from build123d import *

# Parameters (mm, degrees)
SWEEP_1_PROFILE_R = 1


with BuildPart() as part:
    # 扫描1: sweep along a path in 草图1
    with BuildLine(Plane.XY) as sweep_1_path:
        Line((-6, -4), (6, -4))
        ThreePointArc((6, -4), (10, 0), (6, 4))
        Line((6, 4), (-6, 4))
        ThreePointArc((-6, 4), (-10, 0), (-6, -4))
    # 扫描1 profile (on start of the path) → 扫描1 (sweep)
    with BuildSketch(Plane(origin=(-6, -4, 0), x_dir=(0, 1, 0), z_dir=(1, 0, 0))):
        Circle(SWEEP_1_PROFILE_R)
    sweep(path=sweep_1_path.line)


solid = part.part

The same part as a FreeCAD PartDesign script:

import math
import FreeCAD as App
import Part
import Sketcher

V = App.Vector
Q = App.Units.Quantity

doc = App.newDocument("Part")
body = doc.addObject("PartDesign::Body", "Body")

# Sketch on YZ plane
sketch1 = body.newObject("Sketcher::SketchObject", "Sketch")
sketch1.AttachmentSupport = (doc.getObject("YZ_Plane"), [""])
sketch1.MapMode = "FlatFace"
sketch1.AttachmentOffset = App.Placement(V(0, 0, -6), App.Rotation())
sketch1.addGeometry(Part.Circle(V(-4, 0, 0), V(0, 0, 1), 1), False)
sketch1.addConstraint([
    Sketcher.Constraint("PointOnObject", 0, 3, -1),
    Sketcher.Constraint("Diameter", 0, Q("2 mm")),
    Sketcher.Constraint("DistanceX", 0, 3, -1, 1, Q("4 mm")),
])

# Sketch on XY plane
sketch2 = body.newObject("Sketcher::SketchObject", "Sketch001")
sketch2.AttachmentSupport = (doc.getObject("XY_Plane"), [""])
sketch2.MapMode = "FlatFace"
sketch2.addGeometry([
    Part.LineSegment(V(-6, -4, 0), V(6, -4, 0)),
    Part.ArcOfCircle(Part.Circle(V(6, 0, 0), V(0, 0, 1), 4), math.radians(-90), math.radians(90)),
    Part.LineSegment(V(6, 4, 0), V(-6, 4, 0)),
    Part.ArcOfCircle(Part.Circle(V(-6, 0, 0), V(0, 0, 1), 4), math.radians(90), math.radians(270)),
], False)
sketch2.addConstraint([
    Sketcher.Constraint("Tangent", 0, 2, 1, 1),
    Sketcher.Constraint("Tangent", 1, 2, 2, 1),
    Sketcher.Constraint("Tangent", 2, 2, 3, 1),
    Sketcher.Constraint("Tangent", 3, 2, 0, 1),
    Sketcher.Constraint("Horizontal", 0),
    Sketcher.Constraint("Horizontal", 2),
    Sketcher.Constraint("Symmetric", 1, 3, 3, 3, -1, 1),
    Sketcher.Constraint("Radius", 1, Q("4 mm")),
    Sketcher.Constraint("DistanceX", 0, 1, 0, 2, Q("12 mm")),
])
doc.recompute()

additivepipe = body.newObject("PartDesign::AdditivePipe", "AdditivePipe")
additivepipe.Profile = sketch1
additivepipe.Spine = (sketch2, ["Edge1", "Edge2", "Edge3", "Edge4"])

doc.recompute()
